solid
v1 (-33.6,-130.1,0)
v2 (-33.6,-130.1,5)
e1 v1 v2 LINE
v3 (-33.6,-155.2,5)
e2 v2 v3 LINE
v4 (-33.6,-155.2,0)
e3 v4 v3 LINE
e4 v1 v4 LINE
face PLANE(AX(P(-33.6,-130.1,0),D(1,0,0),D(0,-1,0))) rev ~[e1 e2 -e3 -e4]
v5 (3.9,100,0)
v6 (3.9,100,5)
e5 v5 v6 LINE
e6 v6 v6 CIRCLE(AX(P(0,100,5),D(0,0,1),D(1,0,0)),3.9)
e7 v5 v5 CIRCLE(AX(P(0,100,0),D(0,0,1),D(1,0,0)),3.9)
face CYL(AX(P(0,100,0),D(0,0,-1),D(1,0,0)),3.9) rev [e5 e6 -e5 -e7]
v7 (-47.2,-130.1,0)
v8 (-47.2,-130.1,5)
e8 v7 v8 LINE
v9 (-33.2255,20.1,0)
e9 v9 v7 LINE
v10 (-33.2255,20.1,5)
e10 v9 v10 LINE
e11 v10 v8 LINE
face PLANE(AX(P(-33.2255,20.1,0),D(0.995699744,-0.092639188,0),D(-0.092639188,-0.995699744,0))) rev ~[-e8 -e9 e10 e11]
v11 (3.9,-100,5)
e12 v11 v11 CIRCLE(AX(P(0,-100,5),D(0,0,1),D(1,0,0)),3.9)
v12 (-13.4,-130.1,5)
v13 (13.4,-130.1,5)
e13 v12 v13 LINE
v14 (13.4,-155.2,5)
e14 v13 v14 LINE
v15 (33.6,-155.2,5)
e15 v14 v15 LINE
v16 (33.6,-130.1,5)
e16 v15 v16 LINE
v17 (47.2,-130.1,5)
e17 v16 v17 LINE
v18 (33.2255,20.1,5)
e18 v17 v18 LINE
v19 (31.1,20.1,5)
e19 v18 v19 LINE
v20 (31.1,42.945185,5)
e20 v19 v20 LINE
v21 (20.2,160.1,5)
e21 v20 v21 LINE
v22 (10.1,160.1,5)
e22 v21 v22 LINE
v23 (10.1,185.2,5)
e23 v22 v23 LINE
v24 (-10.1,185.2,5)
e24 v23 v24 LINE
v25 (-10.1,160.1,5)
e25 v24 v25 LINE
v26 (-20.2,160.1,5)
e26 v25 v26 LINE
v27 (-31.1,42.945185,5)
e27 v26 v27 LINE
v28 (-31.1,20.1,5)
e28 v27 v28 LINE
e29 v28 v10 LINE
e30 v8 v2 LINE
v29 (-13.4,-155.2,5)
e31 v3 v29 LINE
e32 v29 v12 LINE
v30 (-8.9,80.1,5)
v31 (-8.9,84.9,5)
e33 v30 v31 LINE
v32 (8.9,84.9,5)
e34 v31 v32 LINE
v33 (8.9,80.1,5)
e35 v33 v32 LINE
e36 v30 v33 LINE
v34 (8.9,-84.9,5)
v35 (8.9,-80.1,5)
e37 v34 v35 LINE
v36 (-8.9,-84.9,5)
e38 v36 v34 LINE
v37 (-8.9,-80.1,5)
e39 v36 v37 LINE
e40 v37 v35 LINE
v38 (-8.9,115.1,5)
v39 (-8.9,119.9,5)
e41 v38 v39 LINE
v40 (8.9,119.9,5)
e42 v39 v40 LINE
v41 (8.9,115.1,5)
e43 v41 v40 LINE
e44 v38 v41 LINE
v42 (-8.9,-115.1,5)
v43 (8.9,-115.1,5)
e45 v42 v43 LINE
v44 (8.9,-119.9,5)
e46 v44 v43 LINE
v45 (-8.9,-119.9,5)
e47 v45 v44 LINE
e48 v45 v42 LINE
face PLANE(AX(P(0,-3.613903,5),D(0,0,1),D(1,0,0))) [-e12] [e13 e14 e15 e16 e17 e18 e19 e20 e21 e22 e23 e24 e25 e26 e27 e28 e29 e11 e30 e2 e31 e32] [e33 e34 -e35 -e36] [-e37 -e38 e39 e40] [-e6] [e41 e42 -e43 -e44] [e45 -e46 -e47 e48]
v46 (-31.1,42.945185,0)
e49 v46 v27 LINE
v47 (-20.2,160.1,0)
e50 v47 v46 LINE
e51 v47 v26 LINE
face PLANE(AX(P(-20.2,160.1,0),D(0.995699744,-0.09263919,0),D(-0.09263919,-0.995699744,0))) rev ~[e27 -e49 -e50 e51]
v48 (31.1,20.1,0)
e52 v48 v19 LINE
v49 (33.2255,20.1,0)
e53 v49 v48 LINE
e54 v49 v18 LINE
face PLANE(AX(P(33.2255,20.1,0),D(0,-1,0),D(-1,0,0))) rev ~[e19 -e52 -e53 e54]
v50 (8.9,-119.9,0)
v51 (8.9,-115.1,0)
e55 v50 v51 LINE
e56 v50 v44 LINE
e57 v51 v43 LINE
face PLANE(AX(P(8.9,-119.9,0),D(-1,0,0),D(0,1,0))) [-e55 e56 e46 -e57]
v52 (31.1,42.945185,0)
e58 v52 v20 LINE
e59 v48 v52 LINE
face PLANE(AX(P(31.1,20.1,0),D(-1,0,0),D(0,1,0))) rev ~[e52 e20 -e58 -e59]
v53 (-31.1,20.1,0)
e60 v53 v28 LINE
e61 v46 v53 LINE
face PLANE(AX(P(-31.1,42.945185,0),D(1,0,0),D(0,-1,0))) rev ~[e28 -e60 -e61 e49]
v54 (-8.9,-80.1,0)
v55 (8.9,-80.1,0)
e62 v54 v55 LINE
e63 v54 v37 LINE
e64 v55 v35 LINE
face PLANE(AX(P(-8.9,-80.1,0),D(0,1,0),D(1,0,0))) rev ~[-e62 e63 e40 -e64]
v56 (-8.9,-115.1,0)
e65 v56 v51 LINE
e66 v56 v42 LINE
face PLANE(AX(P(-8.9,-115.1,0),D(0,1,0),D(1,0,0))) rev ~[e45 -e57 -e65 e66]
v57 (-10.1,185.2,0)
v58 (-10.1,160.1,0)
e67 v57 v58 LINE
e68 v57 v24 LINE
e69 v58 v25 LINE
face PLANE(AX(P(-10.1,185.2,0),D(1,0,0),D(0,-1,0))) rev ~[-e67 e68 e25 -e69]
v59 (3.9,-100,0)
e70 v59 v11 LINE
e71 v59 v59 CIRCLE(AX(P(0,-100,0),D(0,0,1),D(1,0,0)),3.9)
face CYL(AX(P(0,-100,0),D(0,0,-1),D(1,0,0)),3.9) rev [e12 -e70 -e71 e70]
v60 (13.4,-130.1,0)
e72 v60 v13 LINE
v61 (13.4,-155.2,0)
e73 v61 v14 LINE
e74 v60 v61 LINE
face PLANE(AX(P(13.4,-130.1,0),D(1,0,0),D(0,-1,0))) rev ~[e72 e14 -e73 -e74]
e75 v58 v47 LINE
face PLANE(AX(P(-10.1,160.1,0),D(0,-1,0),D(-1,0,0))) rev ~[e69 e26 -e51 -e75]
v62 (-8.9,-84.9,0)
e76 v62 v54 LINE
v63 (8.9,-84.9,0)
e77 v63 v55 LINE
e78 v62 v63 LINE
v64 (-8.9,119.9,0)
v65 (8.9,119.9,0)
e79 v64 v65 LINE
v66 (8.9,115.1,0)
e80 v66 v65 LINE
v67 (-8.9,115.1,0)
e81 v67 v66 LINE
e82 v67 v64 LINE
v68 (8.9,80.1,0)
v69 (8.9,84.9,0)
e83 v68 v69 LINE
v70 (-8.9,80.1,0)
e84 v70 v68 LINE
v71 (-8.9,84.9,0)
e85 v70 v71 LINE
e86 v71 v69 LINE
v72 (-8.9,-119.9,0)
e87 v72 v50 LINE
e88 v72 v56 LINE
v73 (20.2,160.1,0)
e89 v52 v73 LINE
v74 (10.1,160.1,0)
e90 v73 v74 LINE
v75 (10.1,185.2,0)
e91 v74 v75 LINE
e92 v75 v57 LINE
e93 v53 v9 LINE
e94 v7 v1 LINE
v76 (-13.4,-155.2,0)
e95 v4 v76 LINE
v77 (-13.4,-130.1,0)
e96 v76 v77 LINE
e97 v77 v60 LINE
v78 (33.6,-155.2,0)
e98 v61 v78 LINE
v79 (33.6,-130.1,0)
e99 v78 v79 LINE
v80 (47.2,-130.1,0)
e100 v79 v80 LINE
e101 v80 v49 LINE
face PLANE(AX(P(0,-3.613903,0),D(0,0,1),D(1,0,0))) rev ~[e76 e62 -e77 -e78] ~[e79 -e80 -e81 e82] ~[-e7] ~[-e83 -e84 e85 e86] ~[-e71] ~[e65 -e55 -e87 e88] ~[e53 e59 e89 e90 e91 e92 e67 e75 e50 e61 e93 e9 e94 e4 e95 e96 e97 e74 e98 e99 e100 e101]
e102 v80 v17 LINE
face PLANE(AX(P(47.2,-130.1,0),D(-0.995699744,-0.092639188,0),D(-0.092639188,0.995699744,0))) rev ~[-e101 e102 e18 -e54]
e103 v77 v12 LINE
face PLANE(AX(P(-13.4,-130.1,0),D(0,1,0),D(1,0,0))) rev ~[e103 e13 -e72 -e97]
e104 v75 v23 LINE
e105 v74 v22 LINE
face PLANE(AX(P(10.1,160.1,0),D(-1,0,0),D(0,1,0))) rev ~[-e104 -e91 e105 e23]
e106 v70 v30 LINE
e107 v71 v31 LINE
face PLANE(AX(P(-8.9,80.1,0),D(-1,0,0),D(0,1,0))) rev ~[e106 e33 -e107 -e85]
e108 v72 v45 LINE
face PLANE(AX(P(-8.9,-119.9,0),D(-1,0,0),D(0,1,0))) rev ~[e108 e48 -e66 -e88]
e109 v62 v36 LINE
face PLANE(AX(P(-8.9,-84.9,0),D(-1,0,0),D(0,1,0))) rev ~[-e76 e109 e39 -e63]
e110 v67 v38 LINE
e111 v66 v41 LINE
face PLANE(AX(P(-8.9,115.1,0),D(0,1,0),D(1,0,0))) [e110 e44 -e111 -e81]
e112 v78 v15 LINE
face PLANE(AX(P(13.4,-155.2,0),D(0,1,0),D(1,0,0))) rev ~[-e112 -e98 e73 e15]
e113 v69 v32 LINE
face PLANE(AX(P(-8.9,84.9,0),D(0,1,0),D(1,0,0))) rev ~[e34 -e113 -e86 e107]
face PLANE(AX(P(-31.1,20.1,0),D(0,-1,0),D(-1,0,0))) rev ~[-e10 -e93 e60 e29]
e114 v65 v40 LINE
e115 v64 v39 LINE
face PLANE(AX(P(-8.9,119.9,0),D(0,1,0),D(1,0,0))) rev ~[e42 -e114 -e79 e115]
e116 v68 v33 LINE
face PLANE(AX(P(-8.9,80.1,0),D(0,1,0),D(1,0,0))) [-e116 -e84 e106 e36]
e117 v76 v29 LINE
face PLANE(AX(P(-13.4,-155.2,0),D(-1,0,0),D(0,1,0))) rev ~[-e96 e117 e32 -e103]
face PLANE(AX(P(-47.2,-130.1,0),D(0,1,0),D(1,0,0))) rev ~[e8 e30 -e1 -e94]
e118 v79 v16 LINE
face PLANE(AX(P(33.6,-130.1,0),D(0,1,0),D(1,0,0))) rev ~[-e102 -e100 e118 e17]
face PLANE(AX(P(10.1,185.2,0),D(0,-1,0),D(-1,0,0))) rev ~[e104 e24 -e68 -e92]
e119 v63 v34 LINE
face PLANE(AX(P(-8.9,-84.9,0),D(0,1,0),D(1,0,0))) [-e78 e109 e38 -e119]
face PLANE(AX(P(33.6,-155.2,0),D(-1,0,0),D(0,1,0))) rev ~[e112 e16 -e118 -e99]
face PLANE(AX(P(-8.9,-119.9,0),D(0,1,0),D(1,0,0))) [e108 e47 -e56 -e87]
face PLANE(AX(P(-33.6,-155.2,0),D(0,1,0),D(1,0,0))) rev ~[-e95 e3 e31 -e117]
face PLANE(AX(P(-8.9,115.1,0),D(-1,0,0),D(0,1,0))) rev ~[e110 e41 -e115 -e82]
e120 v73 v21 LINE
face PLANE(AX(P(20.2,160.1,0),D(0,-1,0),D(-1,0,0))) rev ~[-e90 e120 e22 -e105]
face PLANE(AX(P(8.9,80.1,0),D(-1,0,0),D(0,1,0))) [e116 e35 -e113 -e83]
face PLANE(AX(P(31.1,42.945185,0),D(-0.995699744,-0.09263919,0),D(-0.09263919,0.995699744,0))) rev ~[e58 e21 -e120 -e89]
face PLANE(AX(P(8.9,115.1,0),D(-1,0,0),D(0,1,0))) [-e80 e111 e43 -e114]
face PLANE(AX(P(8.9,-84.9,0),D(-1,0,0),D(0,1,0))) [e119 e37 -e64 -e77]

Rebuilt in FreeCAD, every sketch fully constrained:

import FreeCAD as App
import Part
import Sketcher

V = App.Vector
Q = App.Units.Quantity

doc = App.newDocument("Part")
body = doc.addObject("PartDesign::Body", "Body")

# Sketch on XY plane
sketch1 = body.newObject("Sketcher::SketchObject", "Sketch")
sketch1.AttachmentSupport = (doc.getObject("XY_Plane"), [""])
sketch1.MapMode = "FlatFace"
sketch1.addGeometry([
    Part.LineSegment(V(-10.1, 160.1, 0), V(-20.2, 160.1, 0)),  # 0
    Part.LineSegment(V(-20.2, 160.1, 0), V(-31.1, 42.9, 0)),  # 1
    Part.LineSegment(V(-31.1, 42.9, 0), V(-31.1, 20.1, 0)),  # 2
    Part.LineSegment(V(-31.1, 20.1, 0), V(-33.2, 20.1, 0)),  # 3
    Part.LineSegment(V(-33.2, 20.1, 0), V(-47.2, -130.1, 0)),  # 4
    Part.LineSegment(V(-47.2, -130.1, 0), V(-33.6, -130.1, 0)),  # 5
    Part.LineSegment(V(-33.6, -130.1, 0), V(-33.6, -155.2, 0)),  # 6
    Part.LineSegment(V(-33.6, -155.2, 0), V(-13.4, -155.2, 0)),  # 7
    Part.LineSegment(V(-13.4, -155.2, 0), V(-13.4, -130.1, 0)),  # 8
    Part.LineSegment(V(-13.4, -130.1, 0), V(13.4, -130.1, 0)),  # 9
    Part.LineSegment(V(13.4, -130.1, 0), V(13.4, -155.2, 0)),  # 10
    Part.LineSegment(V(13.4, -155.2, 0), V(33.6, -155.2, 0)),  # 11
    Part.LineSegment(V(33.6, -155.2, 0), V(33.6, -130.1, 0)),  # 12
    Part.LineSegment(V(33.6, -130.1, 0), V(47.2, -130.1, 0)),  # 13
    Part.LineSegment(V(47.2, -130.1, 0), V(33.2, 20.1, 0)),  # 14
    Part.LineSegment(V(33.2, 20.1, 0), V(31.1, 20.1, 0)),  # 15
    Part.LineSegment(V(31.1, 20.1, 0), V(31.1, 42.9, 0)),  # 16
    Part.LineSegment(V(31.1, 42.9, 0), V(20.2, 160.1, 0)),  # 17
    Part.LineSegment(V(20.2, 160.1, 0), V(10.1, 160.1, 0)),  # 18
    Part.LineSegment(V(10.1, 160.1, 0), V(10.1, 185.2, 0)),  # 19
    Part.LineSegment(V(10.1, 185.2, 0), V(-10.1, 185.2, 0)),  # 20
    Part.LineSegment(V(-10.1, 185.2, 0), V(-10.1, 160.1, 0)),  # 21
    Part.Circle(V(0, -100, 0), V(0, 0, 1), 3.9),  # 22
    Part.LineSegment(V(8.9, -119.9, 0), V(-8.9, -119.9, 0)),  # 23
    Part.LineSegment(V(-8.9, -119.9, 0), V(-8.9, -115.1, 0)),  # 24
    Part.LineSegment(V(-8.9, -115.1, 0), V(8.9, -115.1, 0)),  # 25
    Part.LineSegment(V(8.9, -115.1, 0), V(8.9, -119.9, 0)),  # 26
    Part.LineSegment(V(8.9, -84.9, 0), V(-8.9, -84.9, 0)),  # 27
    Part.LineSegment(V(-8.9, -84.9, 0), V(-8.9, -80.1, 0)),  # 28
    Part.LineSegment(V(-8.9, -80.1, 0), V(8.9, -80.1, 0)),  # 29
    Part.LineSegment(V(8.9, -80.1, 0), V(8.9, -84.9, 0)),  # 30
    Part.Circle(V(0, 100, 0), V(0, 0, 1), 3.9),  # 31
    Part.LineSegment(V(8.9, 80.1, 0), V(-8.9, 80.1, 0)),  # 32
    Part.LineSegment(V(-8.9, 80.1, 0), V(-8.9, 84.9, 0)),  # 33
    Part.LineSegment(V(-8.9, 84.9, 0), V(8.9, 84.9, 0)),  # 34
    Part.LineSegment(V(8.9, 84.9, 0), V(8.9, 80.1, 0)),  # 35
    Part.LineSegment(V(8.9, 115.1, 0), V(-8.9, 115.1, 0)),  # 36
    Part.LineSegment(V(-8.9, 115.1, 0), V(-8.9, 119.9, 0)),  # 37
    Part.LineSegment(V(-8.9, 119.9, 0), V(8.9, 119.9, 0)),  # 38
    Part.LineSegment(V(8.9, 119.9, 0), V(8.9, 115.1, 0)),  # 39
], False)
sketch1.addConstraint([
    Sketcher.Constraint("Coincident", 0, 2, 1, 1),
    Sketcher.Constraint("Coincident", 1, 2, 2, 1),
    Sketcher.Constraint("Coincident", 2, 2, 3, 1),
    Sketcher.Constraint("Coincident", 3, 2, 4, 1),
    Sketcher.Constraint("Coincident", 4, 2, 5, 1),
    Sketcher.Constraint("Coincident", 5, 2, 6, 1),
    Sketcher.Constraint("Coincident", 6, 2, 7, 1),
    Sketcher.Constraint("Coincident", 7, 2, 8, 1),
    Sketcher.Constraint("Coincident", 8, 2, 9, 1),
    Sketcher.Constraint("Coincident", 9, 2, 10, 1),
    Sketcher.Constraint("Coincident", 10, 2, 11, 1),
    Sketcher.Constraint("Coincident", 11, 2, 12, 1),
    Sketcher.Constraint("Coincident", 12, 2, 13, 1),
    Sketcher.Constraint("Coincident", 13, 2, 14, 1),
    Sketcher.Constraint("Coincident", 14, 2, 15, 1),
    Sketcher.Constraint("Coincident", 15, 2, 16, 1),
    Sketcher.Constraint("Coincident", 16, 2, 17, 1),
    Sketcher.Constraint("Coincident", 17, 2, 18, 1),
    Sketcher.Constraint("Coincident", 18, 2, 19, 1),
    Sketcher.Constraint("Coincident", 19, 2, 20, 1),
    Sketcher.Constraint("Coincident", 20, 2, 21, 1),
    Sketcher.Constraint("Coincident", 21, 2, 0, 1),
    Sketcher.Constraint("Coincident", 23, 2, 24, 1),
    Sketcher.Constraint("Coincident", 24, 2, 25, 1),
    Sketcher.Constraint("Coincident", 25, 2, 26, 1),
    Sketcher.Constraint("Coincident", 26, 2, 23, 1),
    Sketcher.Constraint("Coincident", 27, 2, 28, 1),
    Sketcher.Constraint("Coincident", 28, 2, 29, 1),
    Sketcher.Constraint("Coincident", 29, 2, 30, 1),
    Sketcher.Constraint("Coincident", 30, 2, 27, 1),
    Sketcher.Constraint("Coincident", 32, 2, 33, 1),
    Sketcher.Constraint("Coincident", 33, 2, 34, 1),
    Sketcher.Constraint("Coincident", 34, 2, 35, 1),
    Sketcher.Constraint("Coincident", 35, 2, 32, 1),
    Sketcher.Constraint("Coincident", 36, 2, 37, 1),
    Sketcher.Constraint("Coincident", 37, 2, 38, 1),
    Sketcher.Constraint("Coincident", 38, 2, 39, 1),
    Sketcher.Constraint("Coincident", 39, 2, 36, 1),
    Sketcher.Constraint("Horizontal", 0),
    Sketcher.Constraint("Vertical", 2),
    Sketcher.Constraint("Horizontal", 3),
    Sketcher.Constraint("Horizontal", 5),
    Sketcher.Constraint("Vertical", 6),
    Sketcher.Constraint("Horizontal", 7),
    Sketcher.Constraint("Vertical", 8),
    Sketcher.Constraint("Horizontal", 9),
    Sketcher.Constraint("Vertical", 10),
    Sketcher.Constraint("Horizontal", 11),
    Sketcher.Constraint("Vertical", 12),
    Sketcher.Constraint("Horizontal", 13),
    Sketcher.Constraint("Horizontal", 15),
    Sketcher.Constraint("Vertical", 16),
    Sketcher.Constraint("Horizontal", 18),
    Sketcher.Constraint("Vertical", 19),
    Sketcher.Constraint("Horizontal", 20),
    Sketcher.Constraint("Vertical", 21),
    Sketcher.Constraint("Horizontal", 23),
    Sketcher.Constraint("Vertical", 24),
    Sketcher.Constraint("Horizontal", 25),
    Sketcher.Constraint("Vertical", 26),
    Sketcher.Constraint("Horizontal", 27),
    Sketcher.Constraint("Vertical", 28),
    Sketcher.Constraint("Horizontal", 29),
    Sketcher.Constraint("Vertical", 30),
    Sketcher.Constraint("Horizontal", 32),
    Sketcher.Constraint("Vertical", 33),
    Sketcher.Constraint("Horizontal", 34),
    Sketcher.Constraint("Vertical", 35),
    Sketcher.Constraint("Horizontal", 36),
    Sketcher.Constraint("Vertical", 37),
    Sketcher.Constraint("Horizontal", 38),
    Sketcher.Constraint("Vertical", 39),
    Sketcher.Constraint("Equal", 22, 31),
    Sketcher.Constraint("Symmetric", 22, 3, 31, 3, -1, 1),
    Sketcher.Constraint("Symmetric", 29, 2, 32, 2, -1, 1),
    Sketcher.Constraint("Symmetric", 27, 2, 34, 2, -1, 1),
    Sketcher.Constraint("Symmetric", 25, 2, 36, 2, -1, 1),
    Sketcher.Constraint("Symmetric", 23, 2, 38, 2, -1, 1),
    Sketcher.Constraint("Symmetric", 7, 2, 10, 2, -2),
    Sketcher.Constraint("Symmetric", 5, 2, 12, 2, -2),
    Sketcher.Constraint("Symmetric", 3, 2, 14, 2, -2),
    Sketcher.Constraint("Symmetric", 1, 2, 16, 2, -2),
    Sketcher.Constraint("Symmetric", 0, 2, 17, 2, -2),
    Sketcher.Constraint("PointOnObject", 22, 3, -2),
    Sketcher.Constraint("Parallel", 1, 4),
    Sketcher.Constraint("Parallel", 14, 17),
    Sketcher.Constraint("Horizontal", 5, 2, 8, 2),
    Sketcher.Constraint("Vertical", 24, 2, 27, 2),
    Sketcher.Constraint("Vertical", 26, 2, 29, 2),
    Sketcher.Constraint("Vertical", 28, 2, 32, 2),
    Sketcher.Constraint("Equal", 0, 18),
    Sketcher.Constraint("Equal", 11, 20),
    Sketcher.Constraint("Equal", 12, 19),
    Sketcher.Constraint("Equal", 26, 28),
    Sketcher.Constraint("Diameter", 22, Q("7.8 mm")),
    Sketcher.Constraint("DistanceX", 0, 2, 0, 1, Q("10.1 mm")),
    Sketcher.Constraint("DistanceX", 5, 1, 5, 2, Q("13.6 mm")),
    Sketcher.Constraint("DistanceX", 7, 1, 7, 2, Q("20.2 mm")),
    Sketcher.Constraint("DistanceX", 9, 1, 9, 2, Q("26.8 mm")),
    Sketcher.Constraint("DistanceX", 23, 2, 23, 1, Q("17.8 mm")),
    Sketcher.Constraint("DistanceY", 6, 2, 6, 1, Q("25.1 mm")),
    Sketcher.Constraint("DistanceY", 24, 1, 24, 2, Q("4.8 mm")),
    Sketcher.Constraint("DistanceY", 22, 3, -1, 1, Q("100 mm")),
    Sketcher.Constraint("DistanceY", 2, 2, 0, 2, Q("140 mm")),
    Sketcher.Constraint("DistanceX", 18, 2, 16, 2, Q("21 mm")),
    Sketcher.Constraint("DistanceY", 8, 2, 24, 2, Q("15 mm")),
    Sketcher.Constraint("DistanceY", 23, 2, 27, 2, Q("35 mm")),
    Sketcher.Constraint("DistanceY", 2, 2, 32, 2, Q("60 mm")),
    Sketcher.Constraint("DistanceY", -1, 1, 0, 2, Q("160.1 mm")),
    Sketcher.Constraint("DistanceX", 3, 2, 3, 1, Q("2.1255 mm")),
])
pad1 = body.newObject("PartDesign::Pad", "Pad")
pad1.Profile = sketch1
pad1.Length = 5

doc.recompute()
